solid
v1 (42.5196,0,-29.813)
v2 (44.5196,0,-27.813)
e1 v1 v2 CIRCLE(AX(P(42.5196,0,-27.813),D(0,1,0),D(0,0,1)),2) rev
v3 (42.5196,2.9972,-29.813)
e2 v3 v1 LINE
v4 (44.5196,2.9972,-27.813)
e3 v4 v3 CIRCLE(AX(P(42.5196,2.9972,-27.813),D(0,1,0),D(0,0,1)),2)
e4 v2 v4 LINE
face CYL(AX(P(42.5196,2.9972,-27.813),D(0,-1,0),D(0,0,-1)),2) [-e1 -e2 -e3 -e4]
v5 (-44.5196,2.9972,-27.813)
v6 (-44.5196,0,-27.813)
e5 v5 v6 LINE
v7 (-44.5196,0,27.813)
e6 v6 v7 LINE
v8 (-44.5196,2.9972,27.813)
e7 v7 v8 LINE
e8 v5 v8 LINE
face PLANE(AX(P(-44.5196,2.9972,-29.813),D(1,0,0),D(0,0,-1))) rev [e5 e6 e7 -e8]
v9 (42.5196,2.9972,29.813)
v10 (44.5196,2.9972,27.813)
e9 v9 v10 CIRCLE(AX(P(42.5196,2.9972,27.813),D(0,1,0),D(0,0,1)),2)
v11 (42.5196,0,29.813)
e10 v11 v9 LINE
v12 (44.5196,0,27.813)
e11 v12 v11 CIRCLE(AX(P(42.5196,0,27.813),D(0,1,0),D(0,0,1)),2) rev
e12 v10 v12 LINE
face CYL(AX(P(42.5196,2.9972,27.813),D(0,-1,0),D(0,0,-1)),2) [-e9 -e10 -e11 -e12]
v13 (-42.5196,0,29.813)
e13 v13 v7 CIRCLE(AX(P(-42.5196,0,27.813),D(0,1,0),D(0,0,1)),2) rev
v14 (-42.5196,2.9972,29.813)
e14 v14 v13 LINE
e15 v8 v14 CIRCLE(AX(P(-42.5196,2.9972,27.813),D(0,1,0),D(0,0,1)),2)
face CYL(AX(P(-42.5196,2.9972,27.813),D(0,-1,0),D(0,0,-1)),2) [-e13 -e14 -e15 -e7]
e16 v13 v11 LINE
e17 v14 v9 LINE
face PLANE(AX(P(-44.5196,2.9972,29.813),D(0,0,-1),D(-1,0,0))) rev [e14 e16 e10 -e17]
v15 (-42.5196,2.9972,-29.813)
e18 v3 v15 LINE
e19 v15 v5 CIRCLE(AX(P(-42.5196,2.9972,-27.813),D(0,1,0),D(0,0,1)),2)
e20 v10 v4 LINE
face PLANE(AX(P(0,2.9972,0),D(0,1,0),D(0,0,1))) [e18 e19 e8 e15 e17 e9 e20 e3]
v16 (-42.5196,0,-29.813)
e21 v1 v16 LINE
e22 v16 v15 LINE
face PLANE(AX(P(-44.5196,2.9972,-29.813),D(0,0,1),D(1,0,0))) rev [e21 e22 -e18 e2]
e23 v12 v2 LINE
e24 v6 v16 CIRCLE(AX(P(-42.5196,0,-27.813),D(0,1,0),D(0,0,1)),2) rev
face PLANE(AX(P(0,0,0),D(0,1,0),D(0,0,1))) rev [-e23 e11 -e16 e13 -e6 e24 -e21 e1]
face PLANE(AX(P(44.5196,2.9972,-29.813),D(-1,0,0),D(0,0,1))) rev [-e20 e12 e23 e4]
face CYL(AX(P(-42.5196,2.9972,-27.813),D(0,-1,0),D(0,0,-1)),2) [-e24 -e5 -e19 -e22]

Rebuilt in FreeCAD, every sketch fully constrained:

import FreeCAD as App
import Part
import Sketcher
from FreeCAD import Vector


def edges_at(feature, points):
    """Names of the edges that pass closest to the given points."""
    edges = feature.Shape.Edges
    near = lambda p: min(range(len(edges)), key=lambda i: edges[i].distToShape(Part.Vertex(*p))[0])
    return sorted({f"Edge{near(p) + 1}" for p in points})

doc = App.newDocument("Part")
body = doc.addObject("PartDesign::Body", "Body")

# Sketch on XZ plane
sketch1 = body.newObject("Sketcher::SketchObject", "Sketch")
sketch1.AttachmentSupport = (doc.getObject("XZ_Plane"), [""])
sketch1.MapMode = "FlatFace"
sketch1.addGeometry(Part.LineSegment(Vector(-45, -30, 0), Vector(-45, 30, 0)), False)
sketch1.addGeometry(Part.LineSegment(Vector(-45, 30, 0), Vector(45, 30, 0)), False)
sketch1.addGeometry(Part.LineSegment(Vector(45, 30, 0), Vector(45, -30, 0)), False)
sketch1.addGeometry(Part.LineSegment(Vector(45, -30, 0), Vector(-45, -30, 0)), False)
sketch1.addConstraint(Sketcher.Constraint("Coincident", 0, 2, 1, 1))
sketch1.addConstraint(Sketcher.Constraint("Coincident", 1, 2, 2, 1))
sketch1.addConstraint(Sketcher.Constraint("Coincident", 2, 2, 3, 1))
sketch1.addConstraint(Sketcher.Constraint("Coincident", 3, 2, 0, 1))
sketch1.addConstraint(Sketcher.Constraint("Vertical", 0))
sketch1.addConstraint(Sketcher.Constraint("Horizontal", 1))
sketch1.addConstraint(Sketcher.Constraint("Vertical", 2))
sketch1.addConstraint(Sketcher.Constraint("Horizontal", 3))
sketch1.addConstraint(Sketcher.Constraint("Symmetric", 0, 2, 2, 2, -1, 1))
sketch1.addConstraint(Sketcher.Constraint("DistanceY", 0, 1, 0, 2, 59.626))
sketch1.addConstraint(Sketcher.Constraint("DistanceX", 1, 1, 1, 2, 89.0392))
pad1 = body.newObject("PartDesign::Pad", "Pad")
pad1.Profile = sketch1
pad1.Length = 2.9972
pad1.Reversed = True
doc.recompute()

fillet = body.newObject("PartDesign::Fillet", "Fillet")
fillet.Base = (pad1, edges_at(pad1, [
    (44.52, 1.499, 29.813),
    (-44.52, 1.499, 29.813),
    (-44.52, 1.499, -29.813),
    (44.52, 1.499, -29.813),
]))
fillet.Radius = 2

doc.recompute()
